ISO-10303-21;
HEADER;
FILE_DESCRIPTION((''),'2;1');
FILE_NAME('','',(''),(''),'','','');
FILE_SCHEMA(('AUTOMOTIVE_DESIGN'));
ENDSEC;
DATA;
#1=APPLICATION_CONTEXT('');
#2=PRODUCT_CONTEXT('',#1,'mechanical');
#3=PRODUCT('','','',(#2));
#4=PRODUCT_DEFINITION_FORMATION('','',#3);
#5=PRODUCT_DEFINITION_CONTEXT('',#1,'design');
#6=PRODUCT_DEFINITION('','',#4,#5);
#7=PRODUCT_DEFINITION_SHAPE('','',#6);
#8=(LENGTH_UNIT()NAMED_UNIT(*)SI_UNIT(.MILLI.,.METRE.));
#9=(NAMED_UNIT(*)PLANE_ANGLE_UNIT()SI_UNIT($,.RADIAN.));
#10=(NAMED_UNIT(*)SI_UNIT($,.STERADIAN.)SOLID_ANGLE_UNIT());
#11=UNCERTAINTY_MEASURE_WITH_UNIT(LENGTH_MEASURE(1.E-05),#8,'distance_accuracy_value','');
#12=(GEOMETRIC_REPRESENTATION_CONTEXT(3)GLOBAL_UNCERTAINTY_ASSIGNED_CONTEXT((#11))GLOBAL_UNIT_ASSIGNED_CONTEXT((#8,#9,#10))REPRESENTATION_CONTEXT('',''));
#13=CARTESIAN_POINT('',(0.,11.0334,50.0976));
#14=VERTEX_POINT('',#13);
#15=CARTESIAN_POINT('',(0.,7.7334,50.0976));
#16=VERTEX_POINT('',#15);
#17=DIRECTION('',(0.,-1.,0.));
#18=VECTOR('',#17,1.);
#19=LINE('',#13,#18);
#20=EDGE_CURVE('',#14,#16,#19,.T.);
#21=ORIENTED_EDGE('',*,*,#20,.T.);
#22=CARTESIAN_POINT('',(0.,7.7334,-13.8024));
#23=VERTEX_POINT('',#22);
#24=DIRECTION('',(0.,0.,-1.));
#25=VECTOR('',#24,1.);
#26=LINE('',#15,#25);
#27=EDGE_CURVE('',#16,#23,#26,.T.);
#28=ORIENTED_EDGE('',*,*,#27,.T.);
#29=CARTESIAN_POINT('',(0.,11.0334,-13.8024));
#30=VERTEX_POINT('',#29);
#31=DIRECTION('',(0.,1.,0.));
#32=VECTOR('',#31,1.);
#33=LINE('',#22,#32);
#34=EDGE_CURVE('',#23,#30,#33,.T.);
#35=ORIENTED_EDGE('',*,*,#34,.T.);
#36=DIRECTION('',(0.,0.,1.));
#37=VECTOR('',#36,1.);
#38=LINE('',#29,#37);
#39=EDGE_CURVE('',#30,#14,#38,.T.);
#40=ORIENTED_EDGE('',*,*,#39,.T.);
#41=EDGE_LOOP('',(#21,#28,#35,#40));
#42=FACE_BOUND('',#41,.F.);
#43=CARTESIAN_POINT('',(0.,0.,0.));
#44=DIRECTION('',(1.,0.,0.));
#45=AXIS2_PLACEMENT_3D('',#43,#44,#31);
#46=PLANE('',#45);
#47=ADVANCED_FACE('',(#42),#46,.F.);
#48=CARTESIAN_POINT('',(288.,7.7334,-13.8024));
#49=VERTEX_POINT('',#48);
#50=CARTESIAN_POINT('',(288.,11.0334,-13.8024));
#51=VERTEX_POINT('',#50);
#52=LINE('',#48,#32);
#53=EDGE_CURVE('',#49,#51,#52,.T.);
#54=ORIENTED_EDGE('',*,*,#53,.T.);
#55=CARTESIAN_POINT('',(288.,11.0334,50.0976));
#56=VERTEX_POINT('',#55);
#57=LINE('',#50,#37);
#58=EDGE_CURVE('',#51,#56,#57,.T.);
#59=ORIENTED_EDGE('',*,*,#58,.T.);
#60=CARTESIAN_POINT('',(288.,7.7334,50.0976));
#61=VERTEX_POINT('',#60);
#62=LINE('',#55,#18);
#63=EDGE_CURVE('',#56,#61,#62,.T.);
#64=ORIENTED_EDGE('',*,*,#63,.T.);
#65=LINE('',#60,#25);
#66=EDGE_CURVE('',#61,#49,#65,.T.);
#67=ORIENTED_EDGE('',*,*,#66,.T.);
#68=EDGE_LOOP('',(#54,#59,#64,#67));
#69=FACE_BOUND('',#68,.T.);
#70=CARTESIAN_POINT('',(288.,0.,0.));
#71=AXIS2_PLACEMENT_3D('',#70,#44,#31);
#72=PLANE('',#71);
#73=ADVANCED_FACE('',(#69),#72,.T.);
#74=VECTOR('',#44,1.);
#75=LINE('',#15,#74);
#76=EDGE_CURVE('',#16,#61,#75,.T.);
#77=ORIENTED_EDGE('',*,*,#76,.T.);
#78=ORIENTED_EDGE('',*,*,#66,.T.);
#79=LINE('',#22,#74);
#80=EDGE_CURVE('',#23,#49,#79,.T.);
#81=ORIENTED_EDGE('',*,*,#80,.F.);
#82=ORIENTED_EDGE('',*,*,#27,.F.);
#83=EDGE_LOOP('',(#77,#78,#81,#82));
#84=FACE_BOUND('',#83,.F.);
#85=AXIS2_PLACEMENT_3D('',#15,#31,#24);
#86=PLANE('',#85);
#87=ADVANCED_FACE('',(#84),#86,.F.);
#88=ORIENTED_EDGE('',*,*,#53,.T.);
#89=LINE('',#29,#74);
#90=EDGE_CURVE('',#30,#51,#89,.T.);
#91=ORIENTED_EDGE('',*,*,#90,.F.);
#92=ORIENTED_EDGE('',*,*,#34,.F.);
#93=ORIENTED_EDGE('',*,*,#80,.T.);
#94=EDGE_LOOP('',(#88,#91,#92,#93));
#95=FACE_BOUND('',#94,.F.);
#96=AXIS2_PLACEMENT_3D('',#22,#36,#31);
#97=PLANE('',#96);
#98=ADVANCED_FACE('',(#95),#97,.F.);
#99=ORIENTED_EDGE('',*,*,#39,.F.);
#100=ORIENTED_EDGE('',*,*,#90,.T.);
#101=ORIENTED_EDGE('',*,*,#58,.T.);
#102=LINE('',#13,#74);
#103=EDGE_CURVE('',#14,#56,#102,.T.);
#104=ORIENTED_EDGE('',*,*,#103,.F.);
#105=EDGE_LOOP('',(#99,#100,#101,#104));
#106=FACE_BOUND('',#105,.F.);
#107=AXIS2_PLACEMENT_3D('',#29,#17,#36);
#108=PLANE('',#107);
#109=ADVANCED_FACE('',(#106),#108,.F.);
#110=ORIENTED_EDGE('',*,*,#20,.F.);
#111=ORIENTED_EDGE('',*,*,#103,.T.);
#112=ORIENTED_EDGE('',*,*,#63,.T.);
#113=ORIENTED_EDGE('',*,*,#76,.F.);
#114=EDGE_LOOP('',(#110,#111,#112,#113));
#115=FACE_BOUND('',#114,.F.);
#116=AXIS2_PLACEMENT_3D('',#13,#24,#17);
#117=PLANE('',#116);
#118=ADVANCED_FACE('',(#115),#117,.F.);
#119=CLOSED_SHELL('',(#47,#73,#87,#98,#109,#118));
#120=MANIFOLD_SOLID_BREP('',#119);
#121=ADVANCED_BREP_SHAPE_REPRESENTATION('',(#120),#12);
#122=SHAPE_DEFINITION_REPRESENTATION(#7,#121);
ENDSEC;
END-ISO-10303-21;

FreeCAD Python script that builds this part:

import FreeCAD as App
import Part
import Sketcher
Q = App.Units.Quantity

doc = App.newDocument("Part")
params = doc.addObject("Spreadsheet::Sheet", "Params")
for row, (alias, value) in enumerate([
    ("sketch1_width", "3.3 mm"),
    ("sketch1_height", "63.9 mm"),
    ("pad1_length", "288 mm"),
], start=1):
    params.set(f"A{row}", alias)
    params.set(f"B{row}", "=" + value)
    params.setAlias(f"B{row}", alias)

body = doc.addObject("PartDesign::Body", "Body")

sketch1 = body.newObject("Sketcher::SketchObject", "Sketch")
sketch1.AttachmentSupport = (doc.getObject("YZ_Plane"), [""])
sketch1.MapMode = "FlatFace"
sketch1.addGeometry([
    Part.LineSegment(App.Vector(11.0334, -13.8024, 0), App.Vector(11.0334, 50.0976, 0)),
    Part.LineSegment(App.Vector(11.0334, 50.0976, 0), App.Vector(7.7334, 50.0976, 0)),
    Part.LineSegment(App.Vector(7.7334, 50.0976, 0), App.Vector(7.7334, -13.8024, 0)),
    Part.LineSegment(App.Vector(7.7334, -13.8024, 0), App.Vector(11.0334, -13.8024, 0)),
], False)
sketch1.addConstraint([
    Sketcher.Constraint("Coincident", 0, 2, 1, 1),
    Sketcher.Constraint("Coincident", 1, 2, 2, 1),
    Sketcher.Constraint("Coincident", 2, 2, 3, 1),
    Sketcher.Constraint("Coincident", 3, 2, 0, 1),
    Sketcher.Constraint("Vertical", 0),
    Sketcher.Constraint("Horizontal", 1),
    Sketcher.Constraint("Vertical", 2),
    Sketcher.Constraint("Horizontal", 3),
    Sketcher.Constraint("DistanceX", 1, 2, 1, 1, Q("3.3 mm")),
    Sketcher.Constraint("DistanceY", 0, 1, 0, 2, Q("63.9 mm")),
    Sketcher.Constraint("DistanceX", -1, 1, 0, 2, Q("11.0334 mm")),
    Sketcher.Constraint("DistanceY", -1, 1, 0, 2, Q("50.0976 mm")),
])
sketch1.setExpression("Constraints[8]", "Params.sketch1_width")
sketch1.setExpression("Constraints[9]", "Params.sketch1_height")
pad1 = body.newObject("PartDesign::Pad", "Pad")
pad1.Profile = sketch1
pad1.setExpression("Length", "Params.pad1_length")

doc.recompute()
